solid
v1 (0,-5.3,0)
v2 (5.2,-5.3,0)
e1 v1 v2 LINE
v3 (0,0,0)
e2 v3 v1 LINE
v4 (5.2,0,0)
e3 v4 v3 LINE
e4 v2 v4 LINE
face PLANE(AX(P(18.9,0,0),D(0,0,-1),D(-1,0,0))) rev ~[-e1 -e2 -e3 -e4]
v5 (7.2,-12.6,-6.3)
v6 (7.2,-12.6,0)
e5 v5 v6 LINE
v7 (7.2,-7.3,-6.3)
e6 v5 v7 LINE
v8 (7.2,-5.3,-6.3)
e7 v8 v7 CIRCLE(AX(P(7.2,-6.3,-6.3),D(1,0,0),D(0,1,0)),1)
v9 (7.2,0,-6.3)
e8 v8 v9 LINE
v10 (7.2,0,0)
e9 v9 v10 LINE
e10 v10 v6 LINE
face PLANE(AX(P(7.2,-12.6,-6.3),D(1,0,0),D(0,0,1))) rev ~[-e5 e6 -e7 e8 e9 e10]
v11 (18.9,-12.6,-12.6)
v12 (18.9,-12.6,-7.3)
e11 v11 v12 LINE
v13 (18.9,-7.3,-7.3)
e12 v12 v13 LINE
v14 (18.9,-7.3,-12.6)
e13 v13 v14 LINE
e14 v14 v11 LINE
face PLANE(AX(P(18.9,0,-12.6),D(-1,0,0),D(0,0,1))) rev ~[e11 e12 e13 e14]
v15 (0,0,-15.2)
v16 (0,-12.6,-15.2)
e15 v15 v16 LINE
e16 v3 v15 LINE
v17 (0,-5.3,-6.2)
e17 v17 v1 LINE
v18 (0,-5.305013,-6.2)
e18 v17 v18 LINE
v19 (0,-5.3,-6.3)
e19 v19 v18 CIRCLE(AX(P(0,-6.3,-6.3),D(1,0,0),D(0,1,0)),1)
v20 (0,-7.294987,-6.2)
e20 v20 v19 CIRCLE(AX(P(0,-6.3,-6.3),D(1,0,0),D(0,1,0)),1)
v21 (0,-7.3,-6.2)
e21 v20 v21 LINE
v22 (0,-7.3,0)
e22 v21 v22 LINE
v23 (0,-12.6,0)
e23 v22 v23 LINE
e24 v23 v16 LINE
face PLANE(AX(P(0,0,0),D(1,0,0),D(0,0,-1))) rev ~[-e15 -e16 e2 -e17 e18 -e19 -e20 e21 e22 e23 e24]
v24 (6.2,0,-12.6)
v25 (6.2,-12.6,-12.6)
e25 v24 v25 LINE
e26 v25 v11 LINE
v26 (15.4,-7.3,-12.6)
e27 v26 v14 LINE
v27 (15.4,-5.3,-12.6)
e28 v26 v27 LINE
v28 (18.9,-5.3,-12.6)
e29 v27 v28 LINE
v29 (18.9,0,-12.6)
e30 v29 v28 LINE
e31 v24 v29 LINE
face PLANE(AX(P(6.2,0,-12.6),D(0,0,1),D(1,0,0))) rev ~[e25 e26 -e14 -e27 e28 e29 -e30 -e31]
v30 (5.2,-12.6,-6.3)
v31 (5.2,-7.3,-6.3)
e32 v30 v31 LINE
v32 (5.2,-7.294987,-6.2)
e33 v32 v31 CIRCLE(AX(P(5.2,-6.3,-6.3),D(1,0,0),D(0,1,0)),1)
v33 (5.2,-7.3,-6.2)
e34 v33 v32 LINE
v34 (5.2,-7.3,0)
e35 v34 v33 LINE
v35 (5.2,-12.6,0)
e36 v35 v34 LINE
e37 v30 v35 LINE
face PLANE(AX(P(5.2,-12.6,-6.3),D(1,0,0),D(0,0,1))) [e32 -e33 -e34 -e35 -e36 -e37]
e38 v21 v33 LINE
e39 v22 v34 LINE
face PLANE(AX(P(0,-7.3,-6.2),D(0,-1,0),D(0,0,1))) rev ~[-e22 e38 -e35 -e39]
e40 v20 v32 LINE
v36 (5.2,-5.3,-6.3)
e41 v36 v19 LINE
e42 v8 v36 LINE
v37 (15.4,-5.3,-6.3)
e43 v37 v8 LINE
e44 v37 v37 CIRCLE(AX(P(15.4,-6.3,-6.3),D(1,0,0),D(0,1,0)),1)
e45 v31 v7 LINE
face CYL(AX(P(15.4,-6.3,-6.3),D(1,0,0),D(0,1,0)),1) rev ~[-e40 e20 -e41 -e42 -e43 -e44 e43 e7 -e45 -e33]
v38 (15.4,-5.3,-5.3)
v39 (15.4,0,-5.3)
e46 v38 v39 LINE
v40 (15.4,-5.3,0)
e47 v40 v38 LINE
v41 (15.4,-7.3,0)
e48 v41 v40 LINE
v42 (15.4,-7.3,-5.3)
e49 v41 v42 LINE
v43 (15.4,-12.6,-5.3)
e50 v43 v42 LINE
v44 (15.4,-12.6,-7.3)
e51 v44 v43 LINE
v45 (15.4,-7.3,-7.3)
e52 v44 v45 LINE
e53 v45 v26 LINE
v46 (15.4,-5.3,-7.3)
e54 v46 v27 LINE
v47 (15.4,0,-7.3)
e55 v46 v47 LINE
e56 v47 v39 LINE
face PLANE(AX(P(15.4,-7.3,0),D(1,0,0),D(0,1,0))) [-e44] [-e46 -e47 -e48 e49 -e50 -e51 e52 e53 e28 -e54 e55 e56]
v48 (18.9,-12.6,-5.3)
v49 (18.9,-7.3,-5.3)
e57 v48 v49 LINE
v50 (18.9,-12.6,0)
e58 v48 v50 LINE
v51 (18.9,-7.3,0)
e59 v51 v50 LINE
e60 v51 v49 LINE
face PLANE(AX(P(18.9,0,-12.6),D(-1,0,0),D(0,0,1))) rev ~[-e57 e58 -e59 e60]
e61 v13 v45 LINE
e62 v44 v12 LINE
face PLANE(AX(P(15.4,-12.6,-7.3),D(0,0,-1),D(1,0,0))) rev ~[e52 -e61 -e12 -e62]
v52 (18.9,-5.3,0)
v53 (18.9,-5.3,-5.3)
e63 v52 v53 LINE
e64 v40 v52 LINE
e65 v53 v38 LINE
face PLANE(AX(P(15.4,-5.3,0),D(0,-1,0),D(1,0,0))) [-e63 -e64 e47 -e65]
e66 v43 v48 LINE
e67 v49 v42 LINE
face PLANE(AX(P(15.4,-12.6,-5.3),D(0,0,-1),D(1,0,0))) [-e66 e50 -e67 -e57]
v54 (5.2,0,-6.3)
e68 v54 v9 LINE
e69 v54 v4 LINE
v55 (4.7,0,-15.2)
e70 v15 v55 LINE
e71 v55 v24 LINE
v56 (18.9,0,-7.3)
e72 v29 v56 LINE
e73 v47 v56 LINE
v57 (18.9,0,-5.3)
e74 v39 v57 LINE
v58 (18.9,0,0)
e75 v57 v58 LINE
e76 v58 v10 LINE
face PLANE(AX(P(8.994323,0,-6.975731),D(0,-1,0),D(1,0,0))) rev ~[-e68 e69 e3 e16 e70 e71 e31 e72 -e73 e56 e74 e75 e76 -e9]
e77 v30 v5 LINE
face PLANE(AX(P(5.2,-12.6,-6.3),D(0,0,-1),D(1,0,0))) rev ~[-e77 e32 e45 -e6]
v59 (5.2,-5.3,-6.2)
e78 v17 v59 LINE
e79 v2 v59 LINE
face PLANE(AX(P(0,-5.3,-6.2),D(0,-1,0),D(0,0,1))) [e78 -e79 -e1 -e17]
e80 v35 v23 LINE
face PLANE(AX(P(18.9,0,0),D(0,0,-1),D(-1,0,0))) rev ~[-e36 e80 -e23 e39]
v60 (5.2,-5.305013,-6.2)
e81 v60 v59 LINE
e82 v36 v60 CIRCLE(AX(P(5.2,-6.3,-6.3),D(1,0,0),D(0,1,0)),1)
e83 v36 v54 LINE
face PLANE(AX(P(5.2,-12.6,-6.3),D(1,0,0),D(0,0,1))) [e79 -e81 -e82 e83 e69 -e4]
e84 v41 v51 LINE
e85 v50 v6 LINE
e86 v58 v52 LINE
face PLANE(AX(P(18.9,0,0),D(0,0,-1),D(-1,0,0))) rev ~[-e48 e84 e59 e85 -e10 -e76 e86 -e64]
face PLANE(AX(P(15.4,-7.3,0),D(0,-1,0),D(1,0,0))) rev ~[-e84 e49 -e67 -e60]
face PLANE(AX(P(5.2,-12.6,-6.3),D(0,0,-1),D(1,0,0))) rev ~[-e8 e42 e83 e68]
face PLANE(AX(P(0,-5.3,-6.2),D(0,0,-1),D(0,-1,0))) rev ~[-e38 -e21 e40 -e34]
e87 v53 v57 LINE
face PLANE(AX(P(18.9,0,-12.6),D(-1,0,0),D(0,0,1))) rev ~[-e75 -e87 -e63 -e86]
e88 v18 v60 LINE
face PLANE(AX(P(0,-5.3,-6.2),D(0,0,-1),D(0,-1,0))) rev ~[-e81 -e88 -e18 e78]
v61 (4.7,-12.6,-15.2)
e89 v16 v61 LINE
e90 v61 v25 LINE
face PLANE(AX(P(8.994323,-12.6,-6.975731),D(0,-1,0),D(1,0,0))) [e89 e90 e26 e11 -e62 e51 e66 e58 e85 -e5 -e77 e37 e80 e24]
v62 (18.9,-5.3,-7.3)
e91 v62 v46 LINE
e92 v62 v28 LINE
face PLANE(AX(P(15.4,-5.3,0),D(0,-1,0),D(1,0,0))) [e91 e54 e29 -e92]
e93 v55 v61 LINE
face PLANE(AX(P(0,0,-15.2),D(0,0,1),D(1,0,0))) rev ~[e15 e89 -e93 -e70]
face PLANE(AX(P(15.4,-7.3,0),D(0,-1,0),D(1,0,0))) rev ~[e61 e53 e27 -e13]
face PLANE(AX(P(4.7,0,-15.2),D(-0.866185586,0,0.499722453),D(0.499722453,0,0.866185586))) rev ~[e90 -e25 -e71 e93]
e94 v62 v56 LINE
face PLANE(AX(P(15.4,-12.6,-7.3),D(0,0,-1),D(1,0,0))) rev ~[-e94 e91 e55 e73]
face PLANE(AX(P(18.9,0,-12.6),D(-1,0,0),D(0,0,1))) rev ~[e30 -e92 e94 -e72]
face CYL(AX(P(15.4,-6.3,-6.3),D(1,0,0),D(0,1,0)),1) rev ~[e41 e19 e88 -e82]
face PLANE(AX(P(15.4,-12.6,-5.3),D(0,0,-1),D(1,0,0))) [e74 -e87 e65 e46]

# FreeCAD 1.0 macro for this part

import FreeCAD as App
import Part
import Sketcher
from FreeCAD import Vector


def add_polygon(sketch, points):
    """Adds a closed chain of lines whose ends are joined by coincident constraints."""
    first, n = sketch.GeometryCount, len(points)
    for a, b in zip(points, points[1:] + points[:1]):
        sketch.addGeometry(Part.LineSegment(App.Vector(*a, 0), App.Vector(*b, 0)), False)
    for i in range(n):
        sketch.addConstraint(Sketcher.Constraint("Coincident", first + i, 2, first + (i + 1) % n, 1))

doc = App.newDocument("Part")
params = doc.addObject("Spreadsheet::Sheet", "Params")
for row, (alias, value) in enumerate([
    ("sketch1_width", "18.9 mm"),
    ("sketch1_width2", "4.7 mm"),
    ("sketch1_width3", "12.7 mm"),
    ("sketch1_height", "15.2 mm"),
    ("sketch1_height2", "12.6 mm"),
    ("pad1_length", "12.6 mm"),
    ("sketch2_width", "2 mm"),
    ("sketch2_height", "6.3 mm"),
    ("sketch3_width", "2 mm"),
    ("sketch3_height", "6.2 mm"),
    ("pocket2_length", "7.2 mm"),
    ("sketch4_height", "2 mm"),
    ("sketch4_width", "3.5 mm"),
    ("sketch5_height", "2 mm"),
    ("sketch5_width", "3.5 mm"),
    ("sketch6_diameter", "2 mm"),
], start=1):
    params.set(f"A{row}", alias)
    params.set(f"B{row}", "=" + value)
    params.setAlias(f"B{row}", alias)

body = doc.addObject("PartDesign::Body", "Body")

sketch1 = body.newObject("Sketcher::SketchObject", "Sketch")
sketch1.AttachmentSupport = (doc.getObject("XZ_Plane"), [""])
sketch1.MapMode = "FlatFace"
add_polygon(sketch1, [(18.9, 0), (0, 0), (0, -15.2), (4.7, -15.2), (6.2, -12.6), (18.9, -12.6)])
sketch1.addConstraint([
    Sketcher.Constraint("Horizontal", 0),
    Sketcher.Constraint("Vertical", 1),
    Sketcher.Constraint("Horizontal", 2),
    Sketcher.Constraint("Horizontal", 4),
    Sketcher.Constraint("Vertical", 5),
    Sketcher.Constraint("Coincident", 0, 2, -1, 1),
    Sketcher.Constraint("DistanceX", 0, 2, 0, 1, 18.9),
    Sketcher.Constraint("DistanceX", 2, 1, 2, 2, 4.7),
    Sketcher.Constraint("DistanceX", 4, 1, 4, 2, 12.7),
    Sketcher.Constraint("DistanceY", 1, 2, 1, 1, 15.2),
    Sketcher.Constraint("DistanceY", 5, 1, 5, 2, 12.6),
])
sketch1.setExpression("Constraints[12]", "Params.sketch1_width")
sketch1.setExpression("Constraints[13]", "Params.sketch1_width2")
sketch1.setExpression("Constraints[14]", "Params.sketch1_width3")
sketch1.setExpression("Constraints[15]", "Params.sketch1_height")
sketch1.setExpression("Constraints[16]", "Params.sketch1_height2")
pad1 = body.newObject("PartDesign::Pad", "Pad")
pad1.Profile = sketch1
pad1.setExpression("Length", "Params.pad1_length")

sketch2 = body.newObject("Sketcher::SketchObject", "Sketch001")
sketch2.AttachmentSupport = (doc.getObject("XZ_Plane"), [""])
sketch2.MapMode = "FlatFace"
sketch2.AttachmentOffset = App.Placement(Vector(0, 0, 12.6), App.Rotation())
add_polygon(sketch2, [(5.2, 0), (5.2, -6.3), (7.2, -6.3), (7.2, 0)])
sketch2.addConstraint([
    Sketcher.Constraint("Vertical", 0),
    Sketcher.Constraint("Horizontal", 1),
    Sketcher.Constraint("Vertical", 2),
    Sketcher.Constraint("Horizontal", 3),
    Sketcher.Constraint("PointOnObject", 2, 2, -1),
    Sketcher.Constraint("DistanceX", 1, 1, 1, 2, 2.0),
    Sketcher.Constraint("DistanceY", 0, 2, 0, 1, 6.3),
    Sketcher.Constraint("DistanceX", -1, 1, 0, 2, 5.2),
])
sketch2.setExpression("Constraints[9]", "Params.sketch2_width")
sketch2.setExpression("Constraints[10]", "Params.sketch2_height")
pocket1 = body.newObject("PartDesign::Pocket", "Pocket")
pocket1.Profile = sketch2
pocket1.Type = "ThroughAll"

sketch3 = body.newObject("Sketcher::SketchObject", "Sketch002")
sketch3.AttachmentSupport = (doc.getObject("YZ_Plane"), [""])
sketch3.MapMode = "FlatFace"
add_polygon(sketch3, [(-5.3, 0), (-5.3, -6.2), (-7.3, -6.2), (-7.3, 0)])
sketch3.addConstraint([
    Sketcher.Constraint("Vertical", 0),
    Sketcher.Constraint("Horizontal", 1),
    Sketcher.Constraint("Vertical", 2),
    Sketcher.Constraint("Horizontal", 3),
    Sketcher.Constraint("PointOnObject", 2, 2, -1),
    Sketcher.Constraint("DistanceX", 1, 2, 1, 1, 2.0),
    Sketcher.Constraint("DistanceY", 0, 2, 0, 1, 6.2),
    Sketcher.Constraint("DistanceX", 0, 2, -1, 1, 5.3),
])
sketch3.setExpression("Constraints[9]", "Params.sketch3_width")
sketch3.setExpression("Constraints[10]", "Params.sketch3_height")
pocket2 = body.newObject("PartDesign::Pocket", "Pocket001")
pocket2.Profile = sketch3
pocket2.setExpression("Length", "Params.pocket2_length")
pocket2.Reversed = True

sketch4 = body.newObject("Sketcher::SketchObject", "Sketch003")
sketch4.AttachmentSupport = (doc.getObject("XZ_Plane"), [""])
sketch4.MapMode = "FlatFace"
sketch4.AttachmentOffset = App.Placement(Vector(0, 0, 12.6), App.Rotation())
add_polygon(sketch4, [(15.4, -5.3), (15.4, -7.3), (18.9, -7.3), (18.9, -5.3)])
sketch4.addConstraint([
    Sketcher.Constraint("Vertical", 0),
    Sketcher.Constraint("Horizontal", 1),
    Sketcher.Constraint("Vertical", 2),
    Sketcher.Constraint("Horizontal", 3),
    Sketcher.Constraint("DistanceY", 0, 2, 0, 1, 2.0),
    Sketcher.Constraint("DistanceX", 1, 1, 1, 2, 3.5),
    Sketcher.Constraint("DistanceX", -1, 1, 0, 2, 15.4),
    Sketcher.Constraint("DistanceY", 0, 2, -1, 1, 7.3),
])
sketch4.setExpression("Constraints[8]", "Params.sketch4_height")
sketch4.setExpression("Constraints[9]", "Params.sketch4_width")
pocket3 = body.newObject("PartDesign::Pocket", "Pocket002")
pocket3.Profile = sketch4
pocket3.Type = "ThroughAll"

sketch5 = body.newObject("Sketcher::SketchObject", "Sketch004")
sketch5.AttachmentSupport = (doc.getObject("XY_Plane"), [""])
sketch5.MapMode = "FlatFace"
add_polygon(sketch5, [(15.4, -5.3), (15.4, -7.3), (18.9, -7.3), (18.9, -5.3)])
sketch5.addConstraint([
    Sketcher.Constraint("Vertical", 0),
    Sketcher.Constraint("Horizontal", 1),
    Sketcher.Constraint("Vertical", 2),
    Sketcher.Constraint("Horizontal", 3),
    Sketcher.Constraint("DistanceY", 0, 2, 0, 1, 2.0),
    Sketcher.Constraint("DistanceX", 1, 1, 1, 2, 3.5),
    Sketcher.Constraint("DistanceX", -1, 1, 0, 2, 15.4),
    Sketcher.Constraint("DistanceY", 0, 2, -1, 1, 7.3),
])
sketch5.setExpression("Constraints[8]", "Params.sketch5_height")
sketch5.setExpression("Constraints[9]", "Params.sketch5_width")
pocket4 = body.newObject("PartDesign::Pocket", "Pocket003")
pocket4.Profile = sketch5
pocket4.Type = "ThroughAll"

sketch6 = body.newObject("Sketcher::SketchObject", "Sketch005")
sketch6.AttachmentSupport = (doc.getObject("YZ_Plane"), [""])
sketch6.MapMode = "FlatFace"
sketch6.AttachmentOffset = App.Placement(Vector(0, 0, 15.4), App.Rotation())
sketch6.addGeometry(Part.Circle(Vector(-6.3, -6.3, 0), Vector(0, 0, 1), 1), False)
sketch6.addConstraint([
    Sketcher.Constraint("Diameter", 0, 2.0),
    Sketcher.Constraint("DistanceX", 0, 3, -1, 1, 6.3),
    Sketcher.Constraint("DistanceY", 0, 3, -1, 1, 6.3),
])
sketch6.setExpression("Constraints[0]", "Params.sketch6_diameter")
pocket5 = body.newObject("PartDesign::Pocket", "Pocket004")
pocket5.Profile = sketch6
pocket5.Type = "ThroughAll"

doc.recompute()
